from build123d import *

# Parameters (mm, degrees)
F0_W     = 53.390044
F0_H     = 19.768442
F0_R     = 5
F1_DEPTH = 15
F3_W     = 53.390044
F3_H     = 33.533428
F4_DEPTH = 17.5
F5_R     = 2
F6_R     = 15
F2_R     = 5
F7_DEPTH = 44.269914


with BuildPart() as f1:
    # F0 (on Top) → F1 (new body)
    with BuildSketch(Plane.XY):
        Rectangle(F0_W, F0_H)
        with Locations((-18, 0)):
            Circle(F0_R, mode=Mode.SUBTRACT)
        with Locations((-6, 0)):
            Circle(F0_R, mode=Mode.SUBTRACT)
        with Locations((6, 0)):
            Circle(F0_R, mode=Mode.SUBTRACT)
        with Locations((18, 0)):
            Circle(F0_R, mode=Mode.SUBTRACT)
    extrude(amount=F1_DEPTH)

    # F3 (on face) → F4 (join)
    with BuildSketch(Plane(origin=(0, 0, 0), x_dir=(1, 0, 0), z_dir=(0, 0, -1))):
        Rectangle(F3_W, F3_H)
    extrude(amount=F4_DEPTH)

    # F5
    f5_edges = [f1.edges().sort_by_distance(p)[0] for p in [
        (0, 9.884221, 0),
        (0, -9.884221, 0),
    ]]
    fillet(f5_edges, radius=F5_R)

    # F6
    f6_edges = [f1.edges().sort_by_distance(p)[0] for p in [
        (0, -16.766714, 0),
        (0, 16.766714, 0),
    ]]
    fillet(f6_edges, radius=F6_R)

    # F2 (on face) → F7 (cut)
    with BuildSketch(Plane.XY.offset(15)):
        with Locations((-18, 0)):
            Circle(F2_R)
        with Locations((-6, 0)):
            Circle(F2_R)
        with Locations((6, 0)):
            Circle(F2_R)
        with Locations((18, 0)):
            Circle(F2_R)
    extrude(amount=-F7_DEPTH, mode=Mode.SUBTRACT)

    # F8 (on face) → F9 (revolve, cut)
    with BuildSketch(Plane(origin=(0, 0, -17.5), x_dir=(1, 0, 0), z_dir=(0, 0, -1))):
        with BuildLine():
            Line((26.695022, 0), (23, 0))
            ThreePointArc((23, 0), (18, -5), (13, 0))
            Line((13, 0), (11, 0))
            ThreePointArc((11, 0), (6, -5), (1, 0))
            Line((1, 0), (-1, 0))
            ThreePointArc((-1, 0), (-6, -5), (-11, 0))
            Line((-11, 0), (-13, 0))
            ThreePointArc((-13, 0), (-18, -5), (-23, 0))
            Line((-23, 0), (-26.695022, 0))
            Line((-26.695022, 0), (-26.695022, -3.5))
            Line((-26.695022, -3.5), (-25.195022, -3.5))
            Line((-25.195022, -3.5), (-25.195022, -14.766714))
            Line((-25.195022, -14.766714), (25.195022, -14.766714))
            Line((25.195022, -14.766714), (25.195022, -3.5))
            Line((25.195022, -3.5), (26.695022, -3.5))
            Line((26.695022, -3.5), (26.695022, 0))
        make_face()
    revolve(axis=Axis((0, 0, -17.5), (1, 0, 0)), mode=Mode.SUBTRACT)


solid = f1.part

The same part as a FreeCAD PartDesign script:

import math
import FreeCAD as App
import Part
import Sketcher

V = App.Vector


def edges_at(feature, points):
    """Names of the edges that pass closest to the given points."""
    edges = feature.Shape.Edges
    near = lambda p: min(range(len(edges)), key=lambda i: edges[i].distToShape(Part.Vertex(*p))[0])
    return sorted({f"Edge{near(p) + 1}" for p in points})

doc = App.newDocument("Part")
body = doc.addObject("PartDesign::Body", "Body")

sketch1 = body.newObject("Sketcher::SketchObject", "Sketch")
sketch1.AttachmentSupport = (doc.getObject("XY_Plane"), [""])
sketch1.MapMode = "FlatFace"
sketch1.addGeometry([
    Part.LineSegment(V(-27, 10, 0), V(-27, -10, 0)),
    Part.LineSegment(V(-27, -10, 0), V(27, -10, 0)),
    Part.LineSegment(V(27, -10, 0), V(27, 10, 0)),
    Part.LineSegment(V(27, 10, 0), V(-27, 10, 0)),
    Part.Circle(V(-18, 0, 0), V(0, 0, 1), 5),
    Part.Circle(V(-6, 0, 0), V(0, 0, 1), 5),
    Part.Circle(V(6, 0, 0), V(0, 0, 1), 5),
    Part.Circle(V(18, 0, 0), V(0, 0, 1), 5),
], False)
sketch1.addConstraint([
    Sketcher.Constraint("Coincident", 0, 2, 1, 1),
    Sketcher.Constraint("Coincident", 1, 2, 2, 1),
    Sketcher.Constraint("Coincident", 2, 2, 3, 1),
    Sketcher.Constraint("Coincident", 3, 2, 0, 1),
    Sketcher.Constraint("Vertical", 0),
    Sketcher.Constraint("Horizontal", 1),
    Sketcher.Constraint("Vertical", 2),
    Sketcher.Constraint("Horizontal", 3),
    Sketcher.Constraint("Equal", 4, 5),
    Sketcher.Constraint("Equal", 5, 6),
    Sketcher.Constraint("Equal", 6, 7),
    Sketcher.Constraint("Symmetric", 5, 3, 6, 3, -1, 1),
    Sketcher.Constraint("Symmetric", 4, 3, 7, 3, -1, 1),
    Sketcher.Constraint("Symmetric", 0, 2, 2, 2, -1, 1),
    Sketcher.Constraint("PointOnObject", 4, 3, -1),
    Sketcher.Constraint("PointOnObject", 5, 3, -1),
    Sketcher.Constraint("Diameter", 4, 10.0),
    Sketcher.Constraint("DistanceX", 4, 3, -1, 1, 18.0),
    Sketcher.Constraint("DistanceX", 5, 3, -1, 1, 6.0),
    Sketcher.Constraint("DistanceX", 1, 1, 1, 2, 53.390044),
    Sketcher.Constraint("DistanceY", 0, 2, 0, 1, 19.768442),
])
pad1 = body.newObject("PartDesign::Pad", "Pad")
pad1.Profile = sketch1
pad1.Length = 15

sketch2 = body.newObject("Sketcher::SketchObject", "Sketch001")
sketch2.AttachmentSupport = (doc.getObject("XY_Plane"), [""])
sketch2.MapMode = "FlatFace"
sketch2.addGeometry([
    Part.LineSegment(V(-27, -17, 0), V(-27, 17, 0)),
    Part.LineSegment(V(-27, 17, 0), V(27, 17, 0)),
    Part.LineSegment(V(27, 17, 0), V(27, -17, 0)),
    Part.LineSegment(V(27, -17, 0), V(-27, -17, 0)),
], False)
sketch2.addConstraint([
    Sketcher.Constraint("Coincident", 0, 2, 1, 1),
    Sketcher.Constraint("Coincident", 1, 2, 2, 1),
    Sketcher.Constraint("Coincident", 2, 2, 3, 1),
    Sketcher.Constraint("Coincident", 3, 2, 0, 1),
    Sketcher.Constraint("Vertical", 0),
    Sketcher.Constraint("Horizontal", 1),
    Sketcher.Constraint("Vertical", 2),
    Sketcher.Constraint("Horizontal", 3),
    Sketcher.Constraint("Symmetric", 0, 2, 2, 2, -1, 1),
    Sketcher.Constraint("DistanceX", 1, 1, 1, 2, 53.390044),
    Sketcher.Constraint("DistanceY", 0, 1, 0, 2, 33.533428),
])
pad2 = body.newObject("PartDesign::Pad", "Pad001")
pad2.Profile = sketch2
pad2.Length = 17.5
pad2.Reversed = True
doc.recompute()

fillet = body.newObject("PartDesign::Fillet", "Fillet")
fillet.Base = (pad2, edges_at(pad2, [(0, 9.884, 0), (0, -9.884, 0)]))
fillet.Radius = 2
doc.recompute()

fillet2 = body.newObject("PartDesign::Fillet", "Fillet001")
fillet2.Base = (fillet, edges_at(fillet, [(0, -16.767, 0), (0, 16.767, 0)]))
fillet2.Radius = 15

sketch3 = body.newObject("Sketcher::SketchObject", "Sketch002")
sketch3.AttachmentSupport = (doc.getObject("XY_Plane"), [""])
sketch3.MapMode = "FlatFace"
sketch3.AttachmentOffset = App.Placement(V(0, 0, 15), App.Rotation())
sketch3.addGeometry([
    Part.Circle(V(-18, 0, 0), V(0, 0, 1), 5),
    Part.Circle(V(-6, 0, 0), V(0, 0, 1), 5),
    Part.Circle(V(6, 0, 0), V(0, 0, 1), 5),
    Part.Circle(V(18, 0, 0), V(0, 0, 1), 5),
], False)
sketch3.addConstraint([
    Sketcher.Constraint("Equal", 0, 1),
    Sketcher.Constraint("Equal", 1, 2),
    Sketcher.Constraint("Equal", 2, 3),
    Sketcher.Constraint("Symmetric", 1, 3, 2, 3, -1, 1),
    Sketcher.Constraint("Symmetric", 0, 3, 3, 3, -1, 1),
    Sketcher.Constraint("PointOnObject", 0, 3, -1),
    Sketcher.Constraint("PointOnObject", 1, 3, -1),
    Sketcher.Constraint("Diameter", 0, 10.0),
    Sketcher.Constraint("DistanceX", 0, 3, -1, 1, 18.0),
    Sketcher.Constraint("DistanceX", 1, 3, -1, 1, 6.0),
])
pocket1 = body.newObject("PartDesign::Pocket", "Pocket")
pocket1.Profile = sketch3
pocket1.Length = 44.269914

sketch4 = body.newObject("Sketcher::SketchObject", "Sketch003")
sketch4.AttachmentSupport = (doc.getObject("XY_Plane"), [""])
sketch4.MapMode = "FlatFace"
sketch4.AttachmentOffset = App.Placement(V(0, 0, -17.5), App.Rotation())
sketch4.addGeometry([
    Part.LineSegment(V(26.7, 0, 0), V(23, 0, 0)),
    Part.ArcOfCircle(Part.Circle(V(18, 0, 0), V(0, 0, 1), 5), math.radians(0), math.radians(180)),
    Part.LineSegment(V(13, 0, 0), V(11, 0, 0)),
    Part.ArcOfCircle(Part.Circle(V(6, 0, 0), V(0, 0, 1), 5), math.radians(0), math.radians(180)),
    Part.LineSegment(V(1, 0, 0), V(-1, 0, 0)),
    Part.ArcOfCircle(Part.Circle(V(-6, 0, 0), V(0, 0, 1), 5), math.radians(0), math.radians(180)),
    Part.LineSegment(V(-11, 0, 0), V(-13, 0, 0)),
    Part.ArcOfCircle(Part.Circle(V(-18, 0, 0), V(0, 0, 1), 5), math.radians(0), math.radians(180)),
    Part.LineSegment(V(-23, 0, 0), V(-26.7, 0, 0)),
    Part.LineSegment(V(-26.7, 0, 0), V(-26.7, 3.5, 0)),
    Part.LineSegment(V(-26.7, 3.5, 0), V(-25.2, 3.5, 0)),
    Part.LineSegment(V(-25.2, 3.5, 0), V(-25.2, 14.8, 0)),
    Part.LineSegment(V(-25.2, 14.8, 0), V(25.2, 14.8, 0)),
    Part.LineSegment(V(25.2, 14.8, 0), V(25.2, 3.5, 0)),
    Part.LineSegment(V(25.2, 3.5, 0), V(26.7, 3.5, 0)),
    Part.LineSegment(V(26.7, 3.5, 0), V(26.7, 0, 0)),
], False)
sketch4.addConstraint([
    Sketcher.Constraint("Coincident", 0, 2, 1, 1),
    Sketcher.Constraint("Coincident", 1, 2, 2, 1),
    Sketcher.Constraint("Coincident", 2, 2, 3, 1),
    Sketcher.Constraint("Coincident", 3, 2, 4, 1),
    Sketcher.Constraint("Coincident", 4, 2, 5, 1),
    Sketcher.Constraint("Coincident", 5, 2, 6, 1),
    Sketcher.Constraint("Coincident", 6, 2, 7, 1),
    Sketcher.Constraint("Coincident", 7, 2, 8, 1),
    Sketcher.Constraint("Coincident", 8, 2, 9, 1),
    Sketcher.Constraint("Coincident", 9, 2, 10, 1),
    Sketcher.Constraint("Coincident", 10, 2, 11, 1),
    Sketcher.Constraint("Coincident", 11, 2, 12, 1),
    Sketcher.Constraint("Coincident", 12, 2, 13, 1),
    Sketcher.Constraint("Coincident", 13, 2, 14, 1),
    Sketcher.Constraint("Coincident", 14, 2, 15, 1),
    Sketcher.Constraint("Coincident", 15, 2, 0, 1),
    Sketcher.Constraint("Horizontal", 0),
    Sketcher.Constraint("Horizontal", 2),
    Sketcher.Constraint("Horizontal", 4),
    Sketcher.Constraint("Horizontal", 6),
    Sketcher.Constraint("Horizontal", 8),
    Sketcher.Constraint("Vertical", 9),
    Sketcher.Constraint("Horizontal", 10),
    Sketcher.Constraint("Vertical", 11),
    Sketcher.Constraint("Horizontal", 12),
    Sketcher.Constraint("Vertical", 13),
    Sketcher.Constraint("Horizontal", 14),
    Sketcher.Constraint("Vertical", 15),
    Sketcher.Constraint("Equal", 1, 3),
    Sketcher.Constraint("Equal", 3, 5),
    Sketcher.Constraint("Equal", 5, 7),
    Sketcher.Constraint("Symmetric", 3, 3, 5, 3, -1, 1),
    Sketcher.Constraint("Symmetric", 1, 3, 7, 3, -1, 1),
    Sketcher.Constraint("Symmetric", 8, 2, 15, 2, -1, 1),
    Sketcher.Constraint("Symmetric", 10, 2, 13, 2, -2),
    Sketcher.Constraint("PointOnObject", 1, 3, -1),
    Sketcher.Constraint("PointOnObject", 3, 3, -1),
    Sketcher.Constraint("PointOnObject", 0, 2, -1),
    Sketcher.Constraint("PointOnObject", 1, 2, -1),
    Sketcher.Constraint("PointOnObject", 3, 2, -1),
    Sketcher.Constraint("PointOnObject", 5, 2, -1),
    Sketcher.Constraint("Equal", 2, 4),
    Sketcher.Constraint("Radius", 1, 5.0),
    Sketcher.Constraint("DistanceX", 2, 2, 2, 1, 2.0),
    Sketcher.Constraint("DistanceX", 10, 1, 10, 2, 1.5),
    Sketcher.Constraint("DistanceY", 9, 1, 9, 2, 3.5),
    Sketcher.Constraint("DistanceX", 0, 2, 0, 1, 3.695022),
    Sketcher.Constraint("DistanceY", 11, 1, 11, 2, 11.266714),
])
groove = body.newObject("PartDesign::Groove", "Groove")
groove.Profile = sketch4
groove.ReferenceAxis = (sketch4, ["H_Axis"])
groove.Angle = 360

doc.recompute()
